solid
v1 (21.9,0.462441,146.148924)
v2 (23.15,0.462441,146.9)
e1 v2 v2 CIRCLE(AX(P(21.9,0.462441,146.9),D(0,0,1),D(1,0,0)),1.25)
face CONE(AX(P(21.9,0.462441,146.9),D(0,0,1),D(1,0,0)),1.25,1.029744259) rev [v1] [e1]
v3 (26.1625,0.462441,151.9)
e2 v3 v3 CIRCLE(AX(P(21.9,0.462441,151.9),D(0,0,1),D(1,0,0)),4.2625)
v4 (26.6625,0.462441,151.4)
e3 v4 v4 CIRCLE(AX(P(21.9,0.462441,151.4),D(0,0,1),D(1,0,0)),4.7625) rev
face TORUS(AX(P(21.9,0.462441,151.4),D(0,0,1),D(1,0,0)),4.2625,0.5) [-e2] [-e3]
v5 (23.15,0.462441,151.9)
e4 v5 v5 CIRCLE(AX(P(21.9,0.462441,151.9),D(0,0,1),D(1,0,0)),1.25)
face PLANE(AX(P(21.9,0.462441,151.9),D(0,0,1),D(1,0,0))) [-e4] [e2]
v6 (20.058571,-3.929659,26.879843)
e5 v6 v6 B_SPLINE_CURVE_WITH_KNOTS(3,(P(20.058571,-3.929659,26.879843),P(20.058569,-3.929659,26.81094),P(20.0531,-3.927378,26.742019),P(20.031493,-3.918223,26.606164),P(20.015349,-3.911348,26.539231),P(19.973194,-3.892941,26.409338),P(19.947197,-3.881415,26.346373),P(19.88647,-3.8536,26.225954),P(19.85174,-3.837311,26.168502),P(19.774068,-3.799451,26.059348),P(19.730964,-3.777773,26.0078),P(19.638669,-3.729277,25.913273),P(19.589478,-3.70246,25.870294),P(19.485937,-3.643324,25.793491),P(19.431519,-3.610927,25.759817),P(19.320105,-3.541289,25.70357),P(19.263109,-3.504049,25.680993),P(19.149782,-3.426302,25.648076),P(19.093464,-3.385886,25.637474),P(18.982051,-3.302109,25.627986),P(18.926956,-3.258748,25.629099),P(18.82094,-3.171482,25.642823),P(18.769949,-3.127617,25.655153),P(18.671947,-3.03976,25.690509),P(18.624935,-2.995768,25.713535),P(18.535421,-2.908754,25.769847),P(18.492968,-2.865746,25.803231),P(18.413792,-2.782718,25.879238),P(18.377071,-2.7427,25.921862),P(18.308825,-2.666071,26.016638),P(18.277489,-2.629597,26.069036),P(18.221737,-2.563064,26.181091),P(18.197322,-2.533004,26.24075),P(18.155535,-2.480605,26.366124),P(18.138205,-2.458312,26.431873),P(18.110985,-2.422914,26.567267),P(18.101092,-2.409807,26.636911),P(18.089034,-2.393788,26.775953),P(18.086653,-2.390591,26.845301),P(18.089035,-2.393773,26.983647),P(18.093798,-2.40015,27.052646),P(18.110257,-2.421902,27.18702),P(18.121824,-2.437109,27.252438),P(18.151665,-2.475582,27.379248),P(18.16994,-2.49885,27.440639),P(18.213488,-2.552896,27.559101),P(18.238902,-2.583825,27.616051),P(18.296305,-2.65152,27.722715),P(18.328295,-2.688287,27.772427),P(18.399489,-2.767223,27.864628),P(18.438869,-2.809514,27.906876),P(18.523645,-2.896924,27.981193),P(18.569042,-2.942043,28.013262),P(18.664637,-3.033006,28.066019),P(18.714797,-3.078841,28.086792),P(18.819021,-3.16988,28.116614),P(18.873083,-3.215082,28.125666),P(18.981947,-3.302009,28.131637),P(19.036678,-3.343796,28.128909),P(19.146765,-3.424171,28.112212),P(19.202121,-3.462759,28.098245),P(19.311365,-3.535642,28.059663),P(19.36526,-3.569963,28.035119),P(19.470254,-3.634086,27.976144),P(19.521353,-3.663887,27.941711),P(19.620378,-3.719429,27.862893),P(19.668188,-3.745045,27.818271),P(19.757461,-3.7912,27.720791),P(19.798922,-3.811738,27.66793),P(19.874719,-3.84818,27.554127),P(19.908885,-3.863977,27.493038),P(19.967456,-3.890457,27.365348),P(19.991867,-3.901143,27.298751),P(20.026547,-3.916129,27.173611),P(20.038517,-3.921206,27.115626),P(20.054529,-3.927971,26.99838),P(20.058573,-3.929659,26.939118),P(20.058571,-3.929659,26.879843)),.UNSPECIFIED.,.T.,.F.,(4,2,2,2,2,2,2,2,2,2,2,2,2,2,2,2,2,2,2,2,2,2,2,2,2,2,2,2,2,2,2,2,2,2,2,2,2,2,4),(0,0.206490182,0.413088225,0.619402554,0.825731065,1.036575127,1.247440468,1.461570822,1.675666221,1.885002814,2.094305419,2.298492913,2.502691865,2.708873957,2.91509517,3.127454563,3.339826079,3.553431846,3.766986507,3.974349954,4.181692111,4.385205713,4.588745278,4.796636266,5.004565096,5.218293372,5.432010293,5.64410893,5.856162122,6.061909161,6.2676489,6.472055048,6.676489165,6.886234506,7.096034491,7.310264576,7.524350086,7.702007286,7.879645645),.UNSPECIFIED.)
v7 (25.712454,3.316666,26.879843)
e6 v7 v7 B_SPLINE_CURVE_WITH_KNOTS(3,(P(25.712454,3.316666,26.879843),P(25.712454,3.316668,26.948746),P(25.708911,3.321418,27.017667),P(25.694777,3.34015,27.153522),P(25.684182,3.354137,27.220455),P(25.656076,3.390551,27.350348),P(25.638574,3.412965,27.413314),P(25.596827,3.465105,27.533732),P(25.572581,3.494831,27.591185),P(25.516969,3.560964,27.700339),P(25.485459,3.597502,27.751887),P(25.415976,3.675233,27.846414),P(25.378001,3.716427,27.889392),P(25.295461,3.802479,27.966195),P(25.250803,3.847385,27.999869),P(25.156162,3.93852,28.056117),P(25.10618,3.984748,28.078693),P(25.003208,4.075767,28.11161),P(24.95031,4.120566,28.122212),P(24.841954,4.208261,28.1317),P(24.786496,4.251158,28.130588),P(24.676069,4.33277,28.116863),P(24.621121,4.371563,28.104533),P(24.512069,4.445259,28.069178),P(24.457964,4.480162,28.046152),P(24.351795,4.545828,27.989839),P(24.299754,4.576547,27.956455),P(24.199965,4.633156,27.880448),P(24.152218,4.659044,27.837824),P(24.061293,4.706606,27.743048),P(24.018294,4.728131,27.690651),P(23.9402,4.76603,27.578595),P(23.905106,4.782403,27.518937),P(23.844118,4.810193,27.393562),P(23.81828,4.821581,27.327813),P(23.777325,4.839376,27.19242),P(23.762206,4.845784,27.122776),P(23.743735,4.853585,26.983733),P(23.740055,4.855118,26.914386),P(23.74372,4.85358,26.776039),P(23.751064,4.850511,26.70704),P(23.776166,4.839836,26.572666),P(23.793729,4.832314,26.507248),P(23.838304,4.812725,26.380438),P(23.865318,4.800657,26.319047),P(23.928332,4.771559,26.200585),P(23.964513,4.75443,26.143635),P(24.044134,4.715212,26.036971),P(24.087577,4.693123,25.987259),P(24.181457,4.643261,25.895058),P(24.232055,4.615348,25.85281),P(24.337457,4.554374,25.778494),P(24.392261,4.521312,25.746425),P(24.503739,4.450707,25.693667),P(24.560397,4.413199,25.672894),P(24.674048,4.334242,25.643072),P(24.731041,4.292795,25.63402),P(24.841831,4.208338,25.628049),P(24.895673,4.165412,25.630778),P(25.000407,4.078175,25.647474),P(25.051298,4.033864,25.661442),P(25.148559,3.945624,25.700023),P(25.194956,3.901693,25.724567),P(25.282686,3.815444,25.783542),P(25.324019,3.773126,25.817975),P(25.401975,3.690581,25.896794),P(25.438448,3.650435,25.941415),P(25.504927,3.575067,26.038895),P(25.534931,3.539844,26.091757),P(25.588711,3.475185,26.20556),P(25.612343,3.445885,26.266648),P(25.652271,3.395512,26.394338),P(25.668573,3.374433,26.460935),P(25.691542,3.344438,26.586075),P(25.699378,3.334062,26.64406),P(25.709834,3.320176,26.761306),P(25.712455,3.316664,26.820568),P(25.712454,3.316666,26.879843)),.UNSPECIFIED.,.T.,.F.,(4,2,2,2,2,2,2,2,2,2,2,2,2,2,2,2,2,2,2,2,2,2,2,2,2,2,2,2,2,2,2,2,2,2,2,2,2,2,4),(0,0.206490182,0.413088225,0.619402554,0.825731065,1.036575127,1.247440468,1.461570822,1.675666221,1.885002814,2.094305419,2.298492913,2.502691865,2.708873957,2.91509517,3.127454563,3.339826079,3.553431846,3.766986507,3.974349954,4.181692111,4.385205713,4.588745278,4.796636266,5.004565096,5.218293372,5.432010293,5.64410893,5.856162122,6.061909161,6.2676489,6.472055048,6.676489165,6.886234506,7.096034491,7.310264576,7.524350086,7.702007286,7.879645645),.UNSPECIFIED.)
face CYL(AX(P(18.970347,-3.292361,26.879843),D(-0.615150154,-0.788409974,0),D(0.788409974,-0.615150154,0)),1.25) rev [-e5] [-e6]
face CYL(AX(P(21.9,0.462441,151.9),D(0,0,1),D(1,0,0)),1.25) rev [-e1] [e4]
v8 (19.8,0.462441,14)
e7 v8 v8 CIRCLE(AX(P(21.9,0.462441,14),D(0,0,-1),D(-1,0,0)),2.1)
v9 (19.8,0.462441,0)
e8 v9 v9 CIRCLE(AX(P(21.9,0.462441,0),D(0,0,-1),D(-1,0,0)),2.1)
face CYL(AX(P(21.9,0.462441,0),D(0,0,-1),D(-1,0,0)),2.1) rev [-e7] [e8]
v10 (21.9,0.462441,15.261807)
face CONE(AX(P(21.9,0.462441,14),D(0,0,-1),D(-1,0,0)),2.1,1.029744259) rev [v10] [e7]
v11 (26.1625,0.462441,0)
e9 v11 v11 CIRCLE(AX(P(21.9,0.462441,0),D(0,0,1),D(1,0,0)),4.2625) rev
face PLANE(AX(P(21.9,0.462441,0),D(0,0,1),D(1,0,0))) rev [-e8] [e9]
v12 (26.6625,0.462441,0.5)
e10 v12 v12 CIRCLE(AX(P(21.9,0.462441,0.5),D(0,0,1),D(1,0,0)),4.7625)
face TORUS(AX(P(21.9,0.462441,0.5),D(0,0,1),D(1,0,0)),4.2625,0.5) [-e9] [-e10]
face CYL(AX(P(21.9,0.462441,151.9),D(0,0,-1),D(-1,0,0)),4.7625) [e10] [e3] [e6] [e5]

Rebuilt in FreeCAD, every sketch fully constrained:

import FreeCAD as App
import Part
import Sketcher
Q = App.Units.Quantity


def edges_at(feature, points):
    """Names of the edges that pass closest to the given points."""
    edges = feature.Shape.Edges
    near = lambda p: min(range(len(edges)), key=lambda i: edges[i].distToShape(Part.Vertex(*p))[0])
    return sorted({f"Edge{near(p) + 1}" for p in points})

doc = App.newDocument("Part")
body = doc.addObject("PartDesign::Body", "Body")

# Sketch on XY plane
sketch1 = body.newObject("Sketcher::SketchObject", "Sketch")
sketch1.AttachmentSupport = (doc.getObject("XY_Plane"), [""])
sketch1.MapMode = "FlatFace"
sketch1.addGeometry(Part.Circle(App.Vector(21.9, 0.462441, 0), App.Vector(0, 0, 1), 4.7625), False)
sketch1.addConstraint([
    Sketcher.Constraint("Diameter", 0, Q("9.525 mm")),
    Sketcher.Constraint("DistanceX", -1, 1, 0, 3, Q("21.9 mm")),
    Sketcher.Constraint("DistanceY", -1, 1, 0, 3, Q("0.462441 mm")),
])
pad1 = body.newObject("PartDesign::Pad", "Pad")
pad1.Profile = sketch1
pad1.Length = 151.9

# Sketch on XY plane
sketch2 = body.newObject("Sketcher::SketchObject", "Sketch001")
sketch2.AttachmentSupport = (doc.getObject("XY_Plane"), [""])
sketch2.MapMode = "FlatFace"
sketch2.addGeometry(Part.Circle(App.Vector(21.9, 0.462441, 0), App.Vector(0, 0, 1), 2.1), False)
sketch2.addConstraint([
    Sketcher.Constraint("Diameter", 0, Q("4.2 mm")),
    Sketcher.Constraint("DistanceX", -1, 1, 0, 3, Q("21.9 mm")),
    Sketcher.Constraint("DistanceY", -1, 1, 0, 3, Q("0.462441 mm")),
])
doc.recompute()
hole = body.newObject("PartDesign::Hole", "Hole")
hole.Profile = sketch2
hole.ThreadType = "None"
hole.Diameter = 4.2
hole.DepthType = "Dimension"
hole.Depth = 14
hole.DrillPoint = "Angled"
hole.DrillPointAngle = 118
hole.Reversed = True
doc.recompute()

fillet = body.newObject("PartDesign::Fillet", "Fillet")
fillet.Base = (hole, edges_at(hole, [(17.137, 0.462, 0)]))
fillet.Radius = 0.5

# Sketch on XY plane
sketch3 = body.newObject("Sketcher::SketchObject", "Sketch002")
sketch3.AttachmentSupport = (doc.getObject("XY_Plane"), [""])
sketch3.MapMode = "FlatFace"
sketch3.AttachmentOffset = App.Placement(App.Vector(0, 0, 151.9), App.Rotation())
sketch3.addGeometry(Part.Circle(App.Vector(21.9, 0.462441, 0), App.Vector(0, 0, 1), 1.25), False)
sketch3.addConstraint([
    Sketcher.Constraint("Diameter", 0, Q("2.5 mm")),
    Sketcher.Constraint("DistanceX", -1, 1, 0, 3, Q("21.9 mm")),
    Sketcher.Constraint("DistanceY", -1, 1, 0, 3, Q("0.462441 mm")),
])
doc.recompute()
hole2 = body.newObject("PartDesign::Hole", "Hole001")
hole2.Profile = sketch3
hole2.ThreadType = "None"
hole2.Diameter = 2.5
hole2.DepthType = "Dimension"
hole2.Depth = 5
hole2.DrillPoint = "Angled"
hole2.DrillPointAngle = 118
doc.recompute()

fillet2 = body.newObject("PartDesign::Fillet", "Fillet001")
fillet2.Base = (hole2, edges_at(hole2, [(17.137, 0.462, 151.9)]))
fillet2.Radius = 0.5

# Sketch on an angled plane
sketch4 = body.newObject("Sketcher::SketchObject", "Sketch003")
sketch4.Placement = App.Placement(App.Vector(5.5818, 7.153939, 0), App.Rotation(App.Vector(-0.788409974, 0.615150154, 0), App.Vector(0, 0, -0.999999999), App.Vector(-0.615150154, -0.788409974, 0), "ZXY"))
sketch4.addGeometry(Part.Circle(App.Vector(-16.981708, -26.879843, 0), App.Vector(0, 0, 1), 1.25), False)
sketch4.addConstraint([
    Sketcher.Constraint("Diameter", 0, Q("2.5 mm")),
    Sketcher.Constraint("DistanceX", 0, 3, -1, 1, Q("16.981708 mm")),
    Sketcher.Constraint("DistanceY", 0, 3, -1, 1, Q("26.879843 mm")),
])
doc.recompute()
hole3 = body.newObject("PartDesign::Hole", "Hole002")
hole3.Profile = sketch4
hole3.ThreadType = "None"
hole3.Diameter = 2.5
hole3.DepthType = "Dimension"
hole3.Depth = 10
hole3.DrillPoint = "Angled"
hole3.DrillPointAngle = 118

doc.recompute()
